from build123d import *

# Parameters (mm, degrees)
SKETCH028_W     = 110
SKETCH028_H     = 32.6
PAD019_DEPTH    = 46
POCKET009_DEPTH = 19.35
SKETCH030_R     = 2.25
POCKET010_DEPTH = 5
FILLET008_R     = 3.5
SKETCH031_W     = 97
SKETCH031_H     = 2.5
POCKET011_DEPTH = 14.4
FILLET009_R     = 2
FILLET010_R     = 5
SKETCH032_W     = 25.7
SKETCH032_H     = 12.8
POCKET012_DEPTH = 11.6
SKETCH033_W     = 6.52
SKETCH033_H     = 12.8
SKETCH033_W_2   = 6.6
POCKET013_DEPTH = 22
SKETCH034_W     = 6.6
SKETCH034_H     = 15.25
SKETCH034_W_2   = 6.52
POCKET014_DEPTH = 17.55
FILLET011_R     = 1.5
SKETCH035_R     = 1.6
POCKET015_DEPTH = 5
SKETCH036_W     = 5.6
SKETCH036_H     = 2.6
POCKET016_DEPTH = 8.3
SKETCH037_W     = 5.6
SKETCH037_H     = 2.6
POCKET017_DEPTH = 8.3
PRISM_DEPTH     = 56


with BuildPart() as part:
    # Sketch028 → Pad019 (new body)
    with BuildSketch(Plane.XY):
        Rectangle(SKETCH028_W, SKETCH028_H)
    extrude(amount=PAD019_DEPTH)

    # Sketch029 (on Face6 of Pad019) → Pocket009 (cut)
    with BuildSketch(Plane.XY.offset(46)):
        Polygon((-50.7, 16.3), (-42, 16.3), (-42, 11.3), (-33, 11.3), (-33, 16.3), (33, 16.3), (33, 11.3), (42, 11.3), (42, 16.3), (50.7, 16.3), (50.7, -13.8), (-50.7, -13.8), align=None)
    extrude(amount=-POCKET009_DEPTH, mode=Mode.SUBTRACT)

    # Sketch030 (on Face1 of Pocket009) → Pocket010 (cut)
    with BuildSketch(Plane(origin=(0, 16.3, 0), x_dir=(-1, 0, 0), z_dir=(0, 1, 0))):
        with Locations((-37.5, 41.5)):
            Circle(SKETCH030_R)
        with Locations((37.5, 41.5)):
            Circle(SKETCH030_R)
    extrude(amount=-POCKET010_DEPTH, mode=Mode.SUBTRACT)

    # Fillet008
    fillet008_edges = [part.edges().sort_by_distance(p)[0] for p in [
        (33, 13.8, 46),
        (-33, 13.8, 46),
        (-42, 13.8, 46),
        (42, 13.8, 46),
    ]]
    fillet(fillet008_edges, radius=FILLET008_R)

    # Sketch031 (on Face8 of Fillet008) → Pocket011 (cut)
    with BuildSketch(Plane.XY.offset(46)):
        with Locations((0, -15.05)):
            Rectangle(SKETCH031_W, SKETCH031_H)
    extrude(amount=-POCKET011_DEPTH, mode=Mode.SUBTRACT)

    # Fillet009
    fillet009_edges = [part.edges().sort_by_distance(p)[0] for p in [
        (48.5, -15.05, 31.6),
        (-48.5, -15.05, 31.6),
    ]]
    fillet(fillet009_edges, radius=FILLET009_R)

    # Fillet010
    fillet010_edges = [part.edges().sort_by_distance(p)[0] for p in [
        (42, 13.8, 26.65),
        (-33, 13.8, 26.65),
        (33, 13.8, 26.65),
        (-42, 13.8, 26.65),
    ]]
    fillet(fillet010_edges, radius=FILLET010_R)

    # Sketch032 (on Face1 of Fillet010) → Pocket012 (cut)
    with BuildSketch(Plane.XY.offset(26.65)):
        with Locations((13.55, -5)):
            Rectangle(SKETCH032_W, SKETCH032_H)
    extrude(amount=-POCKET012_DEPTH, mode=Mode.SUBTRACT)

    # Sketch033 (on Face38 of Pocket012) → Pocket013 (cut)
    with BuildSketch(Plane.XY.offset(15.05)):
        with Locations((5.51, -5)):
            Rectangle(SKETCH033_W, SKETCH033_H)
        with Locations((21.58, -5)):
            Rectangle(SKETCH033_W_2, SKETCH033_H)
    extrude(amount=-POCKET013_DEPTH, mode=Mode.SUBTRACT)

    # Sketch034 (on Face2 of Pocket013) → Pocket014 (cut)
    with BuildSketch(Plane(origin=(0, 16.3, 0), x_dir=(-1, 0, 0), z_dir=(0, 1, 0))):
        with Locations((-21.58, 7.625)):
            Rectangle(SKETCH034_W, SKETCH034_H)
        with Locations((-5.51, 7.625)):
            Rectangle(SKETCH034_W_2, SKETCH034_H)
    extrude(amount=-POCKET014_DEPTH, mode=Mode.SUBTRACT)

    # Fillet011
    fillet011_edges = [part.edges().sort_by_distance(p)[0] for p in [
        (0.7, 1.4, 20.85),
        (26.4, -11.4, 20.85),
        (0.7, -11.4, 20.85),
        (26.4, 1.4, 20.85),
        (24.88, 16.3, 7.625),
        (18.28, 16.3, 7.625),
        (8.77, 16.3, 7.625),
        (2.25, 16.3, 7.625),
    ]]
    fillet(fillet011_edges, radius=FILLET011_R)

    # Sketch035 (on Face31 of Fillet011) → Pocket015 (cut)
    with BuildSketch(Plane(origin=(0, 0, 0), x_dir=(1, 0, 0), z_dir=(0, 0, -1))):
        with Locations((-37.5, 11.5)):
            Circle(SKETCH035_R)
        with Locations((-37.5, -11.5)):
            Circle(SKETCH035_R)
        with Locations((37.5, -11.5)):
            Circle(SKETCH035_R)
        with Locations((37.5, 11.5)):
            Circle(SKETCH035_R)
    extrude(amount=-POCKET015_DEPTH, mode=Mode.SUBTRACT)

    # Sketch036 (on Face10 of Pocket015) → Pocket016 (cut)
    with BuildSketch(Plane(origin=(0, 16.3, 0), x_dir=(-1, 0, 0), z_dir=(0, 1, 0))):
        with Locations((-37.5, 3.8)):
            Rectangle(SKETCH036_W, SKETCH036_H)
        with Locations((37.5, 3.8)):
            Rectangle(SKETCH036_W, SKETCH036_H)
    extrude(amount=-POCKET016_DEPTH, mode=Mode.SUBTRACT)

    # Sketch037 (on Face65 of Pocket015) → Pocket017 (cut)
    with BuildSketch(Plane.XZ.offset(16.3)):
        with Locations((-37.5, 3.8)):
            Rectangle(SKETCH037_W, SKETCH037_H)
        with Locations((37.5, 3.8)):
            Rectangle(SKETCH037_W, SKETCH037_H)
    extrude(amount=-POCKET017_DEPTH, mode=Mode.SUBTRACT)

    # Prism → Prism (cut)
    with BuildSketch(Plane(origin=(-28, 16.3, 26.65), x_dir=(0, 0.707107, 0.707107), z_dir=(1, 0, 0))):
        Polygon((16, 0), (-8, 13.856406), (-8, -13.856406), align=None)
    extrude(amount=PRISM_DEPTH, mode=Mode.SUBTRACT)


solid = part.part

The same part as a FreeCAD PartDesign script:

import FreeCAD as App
import Part
import Sketcher

V = App.Vector
Q = App.Units.Quantity


def edges_at(feature, points):
    """Names of the edges that pass closest to the given points."""
    edges = feature.Shape.Edges
    near = lambda p: min(range(len(edges)), key=lambda i: edges[i].distToShape(Part.Vertex(*p))[0])
    return sorted({f"Edge{near(p) + 1}" for p in points})


def add_polygon(sketch, points):
    """Adds a closed chain of lines whose ends are joined by coincident constraints."""
    first, n = sketch.GeometryCount, len(points)
    for a, b in zip(points, points[1:] + points[:1]):
        sketch.addGeometry(Part.LineSegment(App.Vector(*a, 0), App.Vector(*b, 0)), False)
    for i in range(n):
        sketch.addConstraint(Sketcher.Constraint("Coincident", first + i, 2, first + (i + 1) % n, 1))

doc = App.newDocument("Part")
body = doc.addObject("PartDesign::Body", "Body")

# Sketch on XY plane
sketch1 = body.newObject("Sketcher::SketchObject", "Sketch")
sketch1.AttachmentSupport = (doc.getObject("XY_Plane"), [""])
sketch1.MapMode = "FlatFace"
add_polygon(sketch1, [(-55, 16), (-55, -16), (55, -16), (55, 16)])  # lines 0-3
sketch1.addConstraint([
    Sketcher.Constraint("Vertical", 0),
    Sketcher.Constraint("Horizontal", 1),
    Sketcher.Constraint("Vertical", 2),
    Sketcher.Constraint("Horizontal", 3),
    Sketcher.Constraint("Symmetric", 0, 2, 2, 2, -1, 1),
    Sketcher.Constraint("DistanceX", 1, 1, 1, 2, Q("110 mm")),
    Sketcher.Constraint("DistanceY", 0, 2, 0, 1, Q("32.6 mm")),
])
pad1 = body.newObject("PartDesign::Pad", "Pad")
pad1.Profile = sketch1
pad1.Length = 46

# Sketch on XY plane
sketch2 = body.newObject("Sketcher::SketchObject", "Sketch001")
sketch2.AttachmentSupport = (doc.getObject("XY_Plane"), [""])
sketch2.MapMode = "FlatFace"
sketch2.AttachmentOffset = App.Placement(V(0, 0, 46), App.Rotation())
add_polygon(sketch2, [(-42, 16), (-51, 16), (-51, -14), (51, -14), (51, 16), (42, 16), (42, 11), (33, 11), (33, 16), (-33, 16), (-33, 11), (-42, 11)])  # lines 0-11
sketch2.addConstraint([
    Sketcher.Constraint("Horizontal", 0),
    Sketcher.Constraint("Vertical", 1),
    Sketcher.Constraint("Horizontal", 2),
    Sketcher.Constraint("Vertical", 3),
    Sketcher.Constraint("Horizontal", 4),
    Sketcher.Constraint("Vertical", 5),
    Sketcher.Constraint("Horizontal", 6),
    Sketcher.Constraint("Vertical", 7),
    Sketcher.Constraint("Horizontal", 8),
    Sketcher.Constraint("Vertical", 9),
    Sketcher.Constraint("Horizontal", 10),
    Sketcher.Constraint("Vertical", 11),
    Sketcher.Constraint("Symmetric", 0, 2, 3, 2, -2),
    Sketcher.Constraint("Symmetric", 6, 2, 9, 2, -2),
    Sketcher.Constraint("Horizontal", 4, 2, 7, 2),
    Sketcher.Constraint("Equal", 0, 4),
    Sketcher.Constraint("DistanceX", 6, 2, 6, 1, Q("9 mm")),
    Sketcher.Constraint("DistanceX", 8, 2, 8, 1, Q("66 mm")),
    Sketcher.Constraint("DistanceY", 5, 2, 5, 1, Q("5 mm")),
    Sketcher.Constraint("DistanceX", 0, 2, 0, 1, Q("8.7 mm")),
    Sketcher.Constraint("DistanceY", 1, 2, 1, 1, Q("30.1 mm")),
    Sketcher.Constraint("DistanceY", -1, 1, 0, 2, Q("16.3 mm")),
])
pocket1 = body.newObject("PartDesign::Pocket", "Pocket")
pocket1.Profile = sketch2
pocket1.Length = 19.35

# Sketch on XZ plane
sketch3 = body.newObject("Sketcher::SketchObject", "Sketch002")
sketch3.AttachmentSupport = (doc.getObject("XZ_Plane"), [""])
sketch3.MapMode = "FlatFace"
sketch3.AttachmentOffset = App.Placement(V(0, 0, -16.3), App.Rotation())
sketch3.addGeometry([
    Part.Circle(V(37.5, 41.5, 0), V(0, 0, 1), 2.2),
    Part.Circle(V(-37.5, 41.5, 0), V(0, 0, 1), 2.2),
], False)
sketch3.addConstraint([
    Sketcher.Constraint("Equal", 0, 1),
    Sketcher.Constraint("Symmetric", 0, 3, 1, 3, -2),
    Sketcher.Constraint("Diameter", 0, Q("4.5 mm")),
    Sketcher.Constraint("DistanceX", 1, 3, 0, 3, Q("75 mm")),
    Sketcher.Constraint("DistanceY", -1, 1, 0, 3, Q("41.5 mm")),
])
pocket2 = body.newObject("PartDesign::Pocket", "Pocket001")
pocket2.Profile = sketch3
pocket2.Length = 5
pocket2.Reversed = True
doc.recompute()

fillet = body.newObject("PartDesign::Fillet", "Fillet")
fillet.Base = (pocket2, edges_at(pocket2, [
    (33, 13.8, 46),
    (-33, 13.8, 46),
    (-42, 13.8, 46),
    (42, 13.8, 46),
]))
fillet.Radius = 3.5

# Sketch on XY plane
sketch4 = body.newObject("Sketcher::SketchObject", "Sketch003")
sketch4.AttachmentSupport = (doc.getObject("XY_Plane"), [""])
sketch4.MapMode = "FlatFace"
sketch4.AttachmentOffset = App.Placement(V(0, 0, 46), App.Rotation())
add_polygon(sketch4, [(-48.5, -13.8), (-48.5, -16.3), (48.5, -16.3), (48.5, -13.8)])  # lines 0-3
sketch4.addConstraint([
    Sketcher.Constraint("Vertical", 0),
    Sketcher.Constraint("Horizontal", 1),
    Sketcher.Constraint("Vertical", 2),
    Sketcher.Constraint("Horizontal", 3),
    Sketcher.Constraint("DistanceX", 1, 1, 1, 2, Q("97 mm")),
    Sketcher.Constraint("DistanceY", 0, 2, 0, 1, Q("2.5 mm")),
    Sketcher.Constraint("DistanceX", 0, 2, -1, 1, Q("48.5 mm")),
    Sketcher.Constraint("DistanceY", 0, 2, -1, 1, Q("16.3 mm")),
])
pocket3 = body.newObject("PartDesign::Pocket", "Pocket002")
pocket3.Profile = sketch4
pocket3.Length = 14.4
doc.recompute()

fillet2 = body.newObject("PartDesign::Fillet", "Fillet001")
fillet2.Base = (pocket3, edges_at(pocket3, [(48.5, -15.05, 31.6), (-48.5, -15.05, 31.6)]))
fillet2.Radius = 2
doc.recompute()

fillet3 = body.newObject("PartDesign::Fillet", "Fillet002")
fillet3.Base = (fillet2, edges_at(fillet2, [
    (42, 13.8, 26.65),
    (-33, 13.8, 26.65),
    (33, 13.8, 26.65),
    (-42, 13.8, 26.65),
]))
fillet3.Radius = 5

# Sketch on XY plane
sketch5 = body.newObject("Sketcher::SketchObject", "Sketch004")
sketch5.AttachmentSupport = (doc.getObject("XY_Plane"), [""])
sketch5.MapMode = "FlatFace"
sketch5.AttachmentOffset = App.Placement(V(0, 0, 26.65), App.Rotation())
add_polygon(sketch5, [(1, 1), (1, -11), (26, -11), (26, 1)])  # lines 0-3
sketch5.addConstraint([
    Sketcher.Constraint("Vertical", 0),
    Sketcher.Constraint("Horizontal", 1),
    Sketcher.Constraint("Vertical", 2),
    Sketcher.Constraint("Horizontal", 3),
    Sketcher.Constraint("DistanceX", 1, 1, 1, 2, Q("25.7 mm")),
    Sketcher.Constraint("DistanceY", 0, 2, 0, 1, Q("12.8 mm")),
    Sketcher.Constraint("DistanceX", -1, 1, 0, 2, Q("0.7 mm")),
    Sketcher.Constraint("DistanceY", 0, 2, -1, 1, Q("11.4 mm")),
])
pocket4 = body.newObject("PartDesign::Pocket", "Pocket003")
pocket4.Profile = sketch5
pocket4.Length = 11.6

# Sketch on XY plane
sketch6 = body.newObject("Sketcher::SketchObject", "Sketch005")
sketch6.AttachmentSupport = (doc.getObject("XY_Plane"), [""])
sketch6.MapMode = "FlatFace"
sketch6.AttachmentOffset = App.Placement(V(0, 0, 15.05), App.Rotation())
add_polygon(sketch6, [(2, 1), (2, -11), (9, -11), (9, 1)])  # lines 0-3
add_polygon(sketch6, [(18, 1), (18, -11), (25, -11), (25, 1)])  # lines 4-7
sketch6.addConstraint([
    Sketcher.Constraint("Vertical", 0),
    Sketcher.Constraint("Horizontal", 1),
    Sketcher.Constraint("Vertical", 2),
    Sketcher.Constraint("Horizontal", 3),
    Sketcher.Constraint("Vertical", 4),
    Sketcher.Constraint("Horizontal", 5),
    Sketcher.Constraint("Vertical", 6),
    Sketcher.Constraint("Horizontal", 7),
    Sketcher.Constraint("Horizontal", 1, 2, 4, 2),
    Sketcher.Constraint("Horizontal", 3, 2, 6, 2),
    Sketcher.Constraint("DistanceX", 5, 1, 5, 2, Q("6.6 mm")),
    Sketcher.Constraint("DistanceY", 0, 2, 0, 1, Q("12.8 mm")),
    Sketcher.Constraint("DistanceX", 1, 1, 1, 2, Q("6.52 mm")),
    Sketcher.Constraint("DistanceY", 0, 2, -1, 1, Q("11.4 mm")),
    Sketcher.Constraint("DistanceX", -1, 1, 0, 2, Q("2.25 mm")),
    Sketcher.Constraint("DistanceX", -1, 1, 4, 2, Q("18.28 mm")),
])
pocket5 = body.newObject("PartDesign::Pocket", "Pocket004")
pocket5.Profile = sketch6
pocket5.Length = 22

# Sketch on XZ plane
sketch7 = body.newObject("Sketcher::SketchObject", "Sketch006")
sketch7.AttachmentSupport = (doc.getObject("XZ_Plane"), [""])
sketch7.MapMode = "FlatFace"
sketch7.AttachmentOffset = App.Placement(V(0, 0, -16.3), App.Rotation())
add_polygon(sketch7, [(25, 15), (25, 0), (18, 0), (18, 15)])  # lines 0-3
add_polygon(sketch7, [(9, 15), (9, 0), (2, 0), (2, 15)])  # lines 4-7
sketch7.addConstraint([
    Sketcher.Constraint("Vertical", 0),
    Sketcher.Constraint("Horizontal", 1),
    Sketcher.Constraint("Vertical", 2),
    Sketcher.Constraint("Horizontal", 3),
    Sketcher.Constraint("Vertical", 4),
    Sketcher.Constraint("Horizontal", 5),
    Sketcher.Constraint("Vertical", 6),
    Sketcher.Constraint("Horizontal", 7),
    Sketcher.Constraint("PointOnObject", 0, 2, -1),
    Sketcher.Constraint("PointOnObject", 4, 2, -1),
    Sketcher.Constraint("Horizontal", 3, 2, 6, 2),
    Sketcher.Constraint("DistanceX", 1, 2, 1, 1, Q("6.6 mm")),
    Sketcher.Constraint("DistanceX", 5, 2, 5, 1, Q("6.52 mm")),
    Sketcher.Constraint("DistanceY", 0, 2, 0, 1, Q("15.25 mm")),
    Sketcher.Constraint("DistanceX", -1, 1, 0, 2, Q("24.88 mm")),
    Sketcher.Constraint("DistanceX", -1, 1, 4, 2, Q("8.77 mm")),
])
pocket6 = body.newObject("PartDesign::Pocket", "Pocket005")
pocket6.Profile = sketch7
pocket6.Length = 17.55
pocket6.Reversed = True
doc.recompute()

fillet4 = body.newObject("PartDesign::Fillet", "Fillet003")
fillet4.Base = (pocket6, edges_at(pocket6, [
    (0.7, 1.4, 20.85),
    (26.4, -11.4, 20.85),
    (0.7, -11.4, 20.85),
    (26.4, 1.4, 20.85),
    (24.88, 16.3, 7.625),
    (18.28, 16.3, 7.625),
    (8.77, 16.3, 7.625),
    (2.25, 16.3, 7.625),
]))
fillet4.Radius = 1.5

# Sketch on XY plane
sketch8 = body.newObject("Sketcher::SketchObject", "Sketch007")
sketch8.AttachmentSupport = (doc.getObject("XY_Plane"), [""])
sketch8.MapMode = "FlatFace"
sketch8.addGeometry([
    Part.Circle(V(-37.5, -11.5, 0), V(0, 0, 1), 1.6),
    Part.Circle(V(-37.5, 11.5, 0), V(0, 0, 1), 1.6),
    Part.Circle(V(37.5, 11.5, 0), V(0, 0, 1), 1.6),
    Part.Circle(V(37.5, -11.5, 0), V(0, 0, 1), 1.6),
], False)
sketch8.addConstraint([
    Sketcher.Constraint("Equal", 0, 1),
    Sketcher.Constraint("Equal", 1, 2),
    Sketcher.Constraint("Equal", 2, 3),
    Sketcher.Constraint("Symmetric", 0, 3, 2, 3, -1, 1),
    Sketcher.Constraint("Symmetric", 1, 3, 3, 3, -1, 1),
    Sketcher.Constraint("Symmetric", 1, 3, 2, 3, -2),
    Sketcher.Constraint("Diameter", 0, Q("3.2 mm")),
    Sketcher.Constraint("DistanceY", 0, 3, 1, 3, Q("23 mm")),
    Sketcher.Constraint("DistanceX", 1, 3, 2, 3, Q("75 mm")),
])
pocket7 = body.newObject("PartDesign::Pocket", "Pocket006")
pocket7.Profile = sketch8
pocket7.Length = 5
pocket7.Reversed = True

# Sketch on XZ plane
sketch9 = body.newObject("Sketcher::SketchObject", "Sketch008")
sketch9.AttachmentSupport = (doc.getObject("XZ_Plane"), [""])
sketch9.MapMode = "FlatFace"
sketch9.AttachmentOffset = App.Placement(V(0, 0, -16.3), App.Rotation())
add_polygon(sketch9, [(40.3, 5.1), (40.3, 2.5), (34.7, 2.5), (34.7, 5.1)])  # lines 0-3
add_polygon(sketch9, [(-34.7, 5.1), (-34.7, 2.5), (-40.3, 2.5), (-40.3, 5.1)])  # lines 4-7
sketch9.addConstraint([
    Sketcher.Constraint("Vertical", 0),
    Sketcher.Constraint("Horizontal", 1),
    Sketcher.Constraint("Vertical", 2),
    Sketcher.Constraint("Horizontal", 3),
    Sketcher.Constraint("Vertical", 4),
    Sketcher.Constraint("Horizontal", 5),
    Sketcher.Constraint("Vertical", 6),
    Sketcher.Constraint("Horizontal", 7),
    Sketcher.Constraint("Symmetric", 1, 2, 4, 2, -2),
    Sketcher.Constraint("Symmetric", 3, 2, 6, 2, -2),
    Sketcher.Constraint("DistanceX", 1, 2, 1, 1, Q("5.6 mm")),
    Sketcher.Constraint("DistanceY", 0, 2, 0, 1, Q("2.6 mm")),
    Sketcher.Constraint("DistanceX", 4, 2, 0, 2, Q("75 mm")),
    Sketcher.Constraint("DistanceY", -1, 1, 0, 2, Q("2.5 mm")),
])
pocket8 = body.newObject("PartDesign::Pocket", "Pocket007")
pocket8.Profile = sketch9
pocket8.Length = 8.3
pocket8.Reversed = True

# Sketch on XZ plane
sketch10 = body.newObject("Sketcher::SketchObject", "Sketch009")
sketch10.AttachmentSupport = (doc.getObject("XZ_Plane"), [""])
sketch10.MapMode = "FlatFace"
sketch10.AttachmentOffset = App.Placement(V(0, 0, 16.3), App.Rotation())
add_polygon(sketch10, [(-40.3, 5.1), (-40.3, 2.5), (-34.7, 2.5), (-34.7, 5.1)])  # lines 0-3
add_polygon(sketch10, [(34.7, 5.1), (34.7, 2.5), (40.3, 2.5), (40.3, 5.1)])  # lines 4-7
sketch10.addConstraint([
    Sketcher.Constraint("Vertical", 0),
    Sketcher.Constraint("Horizontal", 1),
    Sketcher.Constraint("Vertical", 2),
    Sketcher.Constraint("Horizontal", 3),
    Sketcher.Constraint("Vertical", 4),
    Sketcher.Constraint("Horizontal", 5),
    Sketcher.Constraint("Vertical", 6),
    Sketcher.Constraint("Horizontal", 7),
    Sketcher.Constraint("Symmetric", 1, 2, 4, 2, -2),
    Sketcher.Constraint("Symmetric", 3, 2, 6, 2, -2),
    Sketcher.Constraint("DistanceX", 1, 1, 1, 2, Q("5.6 mm")),
    Sketcher.Constraint("DistanceY", 0, 2, 0, 1, Q("2.6 mm")),
    Sketcher.Constraint("DistanceX", 0, 2, 4, 2, Q("75 mm")),
    Sketcher.Constraint("DistanceY", -1, 1, 0, 2, Q("2.5 mm")),
])
pocket9 = body.newObject("PartDesign::Pocket", "Pocket008")
pocket9.Profile = sketch10
pocket9.Length = 8.3

# Sketch on YZ plane
sketch11 = body.newObject("Sketcher::SketchObject", "Sketch010")
sketch11.AttachmentSupport = (doc.getObject("YZ_Plane"), [""])
sketch11.MapMode = "FlatFace"
sketch11.AttachmentOffset = App.Placement(V(0, 0, -28), App.Rotation())
add_polygon(sketch11, [(28, 38), (1, 31), (20, 11)])  # lines 0-2
sketch11.addConstraint([
    Sketcher.Constraint("Equal", 0, 1),
    Sketcher.Constraint("Equal", 1, 2),
    Sketcher.Constraint("Angle", 0, Q("-164.999999 deg")),
    Sketcher.Constraint("Distance", 1, Q("27.712812 mm")),
    Sketcher.Constraint("DistanceX", -1, 1, 2, 2, Q("27.613708 mm")),
    Sketcher.Constraint("DistanceY", -1, 1, 2, 2, Q("37.963708 mm")),
])
pocket10 = body.newObject("PartDesign::Pocket", "Pocket009")
pocket10.Profile = sketch11
pocket10.Length = 56
pocket10.Reversed = True

doc.recompute()
